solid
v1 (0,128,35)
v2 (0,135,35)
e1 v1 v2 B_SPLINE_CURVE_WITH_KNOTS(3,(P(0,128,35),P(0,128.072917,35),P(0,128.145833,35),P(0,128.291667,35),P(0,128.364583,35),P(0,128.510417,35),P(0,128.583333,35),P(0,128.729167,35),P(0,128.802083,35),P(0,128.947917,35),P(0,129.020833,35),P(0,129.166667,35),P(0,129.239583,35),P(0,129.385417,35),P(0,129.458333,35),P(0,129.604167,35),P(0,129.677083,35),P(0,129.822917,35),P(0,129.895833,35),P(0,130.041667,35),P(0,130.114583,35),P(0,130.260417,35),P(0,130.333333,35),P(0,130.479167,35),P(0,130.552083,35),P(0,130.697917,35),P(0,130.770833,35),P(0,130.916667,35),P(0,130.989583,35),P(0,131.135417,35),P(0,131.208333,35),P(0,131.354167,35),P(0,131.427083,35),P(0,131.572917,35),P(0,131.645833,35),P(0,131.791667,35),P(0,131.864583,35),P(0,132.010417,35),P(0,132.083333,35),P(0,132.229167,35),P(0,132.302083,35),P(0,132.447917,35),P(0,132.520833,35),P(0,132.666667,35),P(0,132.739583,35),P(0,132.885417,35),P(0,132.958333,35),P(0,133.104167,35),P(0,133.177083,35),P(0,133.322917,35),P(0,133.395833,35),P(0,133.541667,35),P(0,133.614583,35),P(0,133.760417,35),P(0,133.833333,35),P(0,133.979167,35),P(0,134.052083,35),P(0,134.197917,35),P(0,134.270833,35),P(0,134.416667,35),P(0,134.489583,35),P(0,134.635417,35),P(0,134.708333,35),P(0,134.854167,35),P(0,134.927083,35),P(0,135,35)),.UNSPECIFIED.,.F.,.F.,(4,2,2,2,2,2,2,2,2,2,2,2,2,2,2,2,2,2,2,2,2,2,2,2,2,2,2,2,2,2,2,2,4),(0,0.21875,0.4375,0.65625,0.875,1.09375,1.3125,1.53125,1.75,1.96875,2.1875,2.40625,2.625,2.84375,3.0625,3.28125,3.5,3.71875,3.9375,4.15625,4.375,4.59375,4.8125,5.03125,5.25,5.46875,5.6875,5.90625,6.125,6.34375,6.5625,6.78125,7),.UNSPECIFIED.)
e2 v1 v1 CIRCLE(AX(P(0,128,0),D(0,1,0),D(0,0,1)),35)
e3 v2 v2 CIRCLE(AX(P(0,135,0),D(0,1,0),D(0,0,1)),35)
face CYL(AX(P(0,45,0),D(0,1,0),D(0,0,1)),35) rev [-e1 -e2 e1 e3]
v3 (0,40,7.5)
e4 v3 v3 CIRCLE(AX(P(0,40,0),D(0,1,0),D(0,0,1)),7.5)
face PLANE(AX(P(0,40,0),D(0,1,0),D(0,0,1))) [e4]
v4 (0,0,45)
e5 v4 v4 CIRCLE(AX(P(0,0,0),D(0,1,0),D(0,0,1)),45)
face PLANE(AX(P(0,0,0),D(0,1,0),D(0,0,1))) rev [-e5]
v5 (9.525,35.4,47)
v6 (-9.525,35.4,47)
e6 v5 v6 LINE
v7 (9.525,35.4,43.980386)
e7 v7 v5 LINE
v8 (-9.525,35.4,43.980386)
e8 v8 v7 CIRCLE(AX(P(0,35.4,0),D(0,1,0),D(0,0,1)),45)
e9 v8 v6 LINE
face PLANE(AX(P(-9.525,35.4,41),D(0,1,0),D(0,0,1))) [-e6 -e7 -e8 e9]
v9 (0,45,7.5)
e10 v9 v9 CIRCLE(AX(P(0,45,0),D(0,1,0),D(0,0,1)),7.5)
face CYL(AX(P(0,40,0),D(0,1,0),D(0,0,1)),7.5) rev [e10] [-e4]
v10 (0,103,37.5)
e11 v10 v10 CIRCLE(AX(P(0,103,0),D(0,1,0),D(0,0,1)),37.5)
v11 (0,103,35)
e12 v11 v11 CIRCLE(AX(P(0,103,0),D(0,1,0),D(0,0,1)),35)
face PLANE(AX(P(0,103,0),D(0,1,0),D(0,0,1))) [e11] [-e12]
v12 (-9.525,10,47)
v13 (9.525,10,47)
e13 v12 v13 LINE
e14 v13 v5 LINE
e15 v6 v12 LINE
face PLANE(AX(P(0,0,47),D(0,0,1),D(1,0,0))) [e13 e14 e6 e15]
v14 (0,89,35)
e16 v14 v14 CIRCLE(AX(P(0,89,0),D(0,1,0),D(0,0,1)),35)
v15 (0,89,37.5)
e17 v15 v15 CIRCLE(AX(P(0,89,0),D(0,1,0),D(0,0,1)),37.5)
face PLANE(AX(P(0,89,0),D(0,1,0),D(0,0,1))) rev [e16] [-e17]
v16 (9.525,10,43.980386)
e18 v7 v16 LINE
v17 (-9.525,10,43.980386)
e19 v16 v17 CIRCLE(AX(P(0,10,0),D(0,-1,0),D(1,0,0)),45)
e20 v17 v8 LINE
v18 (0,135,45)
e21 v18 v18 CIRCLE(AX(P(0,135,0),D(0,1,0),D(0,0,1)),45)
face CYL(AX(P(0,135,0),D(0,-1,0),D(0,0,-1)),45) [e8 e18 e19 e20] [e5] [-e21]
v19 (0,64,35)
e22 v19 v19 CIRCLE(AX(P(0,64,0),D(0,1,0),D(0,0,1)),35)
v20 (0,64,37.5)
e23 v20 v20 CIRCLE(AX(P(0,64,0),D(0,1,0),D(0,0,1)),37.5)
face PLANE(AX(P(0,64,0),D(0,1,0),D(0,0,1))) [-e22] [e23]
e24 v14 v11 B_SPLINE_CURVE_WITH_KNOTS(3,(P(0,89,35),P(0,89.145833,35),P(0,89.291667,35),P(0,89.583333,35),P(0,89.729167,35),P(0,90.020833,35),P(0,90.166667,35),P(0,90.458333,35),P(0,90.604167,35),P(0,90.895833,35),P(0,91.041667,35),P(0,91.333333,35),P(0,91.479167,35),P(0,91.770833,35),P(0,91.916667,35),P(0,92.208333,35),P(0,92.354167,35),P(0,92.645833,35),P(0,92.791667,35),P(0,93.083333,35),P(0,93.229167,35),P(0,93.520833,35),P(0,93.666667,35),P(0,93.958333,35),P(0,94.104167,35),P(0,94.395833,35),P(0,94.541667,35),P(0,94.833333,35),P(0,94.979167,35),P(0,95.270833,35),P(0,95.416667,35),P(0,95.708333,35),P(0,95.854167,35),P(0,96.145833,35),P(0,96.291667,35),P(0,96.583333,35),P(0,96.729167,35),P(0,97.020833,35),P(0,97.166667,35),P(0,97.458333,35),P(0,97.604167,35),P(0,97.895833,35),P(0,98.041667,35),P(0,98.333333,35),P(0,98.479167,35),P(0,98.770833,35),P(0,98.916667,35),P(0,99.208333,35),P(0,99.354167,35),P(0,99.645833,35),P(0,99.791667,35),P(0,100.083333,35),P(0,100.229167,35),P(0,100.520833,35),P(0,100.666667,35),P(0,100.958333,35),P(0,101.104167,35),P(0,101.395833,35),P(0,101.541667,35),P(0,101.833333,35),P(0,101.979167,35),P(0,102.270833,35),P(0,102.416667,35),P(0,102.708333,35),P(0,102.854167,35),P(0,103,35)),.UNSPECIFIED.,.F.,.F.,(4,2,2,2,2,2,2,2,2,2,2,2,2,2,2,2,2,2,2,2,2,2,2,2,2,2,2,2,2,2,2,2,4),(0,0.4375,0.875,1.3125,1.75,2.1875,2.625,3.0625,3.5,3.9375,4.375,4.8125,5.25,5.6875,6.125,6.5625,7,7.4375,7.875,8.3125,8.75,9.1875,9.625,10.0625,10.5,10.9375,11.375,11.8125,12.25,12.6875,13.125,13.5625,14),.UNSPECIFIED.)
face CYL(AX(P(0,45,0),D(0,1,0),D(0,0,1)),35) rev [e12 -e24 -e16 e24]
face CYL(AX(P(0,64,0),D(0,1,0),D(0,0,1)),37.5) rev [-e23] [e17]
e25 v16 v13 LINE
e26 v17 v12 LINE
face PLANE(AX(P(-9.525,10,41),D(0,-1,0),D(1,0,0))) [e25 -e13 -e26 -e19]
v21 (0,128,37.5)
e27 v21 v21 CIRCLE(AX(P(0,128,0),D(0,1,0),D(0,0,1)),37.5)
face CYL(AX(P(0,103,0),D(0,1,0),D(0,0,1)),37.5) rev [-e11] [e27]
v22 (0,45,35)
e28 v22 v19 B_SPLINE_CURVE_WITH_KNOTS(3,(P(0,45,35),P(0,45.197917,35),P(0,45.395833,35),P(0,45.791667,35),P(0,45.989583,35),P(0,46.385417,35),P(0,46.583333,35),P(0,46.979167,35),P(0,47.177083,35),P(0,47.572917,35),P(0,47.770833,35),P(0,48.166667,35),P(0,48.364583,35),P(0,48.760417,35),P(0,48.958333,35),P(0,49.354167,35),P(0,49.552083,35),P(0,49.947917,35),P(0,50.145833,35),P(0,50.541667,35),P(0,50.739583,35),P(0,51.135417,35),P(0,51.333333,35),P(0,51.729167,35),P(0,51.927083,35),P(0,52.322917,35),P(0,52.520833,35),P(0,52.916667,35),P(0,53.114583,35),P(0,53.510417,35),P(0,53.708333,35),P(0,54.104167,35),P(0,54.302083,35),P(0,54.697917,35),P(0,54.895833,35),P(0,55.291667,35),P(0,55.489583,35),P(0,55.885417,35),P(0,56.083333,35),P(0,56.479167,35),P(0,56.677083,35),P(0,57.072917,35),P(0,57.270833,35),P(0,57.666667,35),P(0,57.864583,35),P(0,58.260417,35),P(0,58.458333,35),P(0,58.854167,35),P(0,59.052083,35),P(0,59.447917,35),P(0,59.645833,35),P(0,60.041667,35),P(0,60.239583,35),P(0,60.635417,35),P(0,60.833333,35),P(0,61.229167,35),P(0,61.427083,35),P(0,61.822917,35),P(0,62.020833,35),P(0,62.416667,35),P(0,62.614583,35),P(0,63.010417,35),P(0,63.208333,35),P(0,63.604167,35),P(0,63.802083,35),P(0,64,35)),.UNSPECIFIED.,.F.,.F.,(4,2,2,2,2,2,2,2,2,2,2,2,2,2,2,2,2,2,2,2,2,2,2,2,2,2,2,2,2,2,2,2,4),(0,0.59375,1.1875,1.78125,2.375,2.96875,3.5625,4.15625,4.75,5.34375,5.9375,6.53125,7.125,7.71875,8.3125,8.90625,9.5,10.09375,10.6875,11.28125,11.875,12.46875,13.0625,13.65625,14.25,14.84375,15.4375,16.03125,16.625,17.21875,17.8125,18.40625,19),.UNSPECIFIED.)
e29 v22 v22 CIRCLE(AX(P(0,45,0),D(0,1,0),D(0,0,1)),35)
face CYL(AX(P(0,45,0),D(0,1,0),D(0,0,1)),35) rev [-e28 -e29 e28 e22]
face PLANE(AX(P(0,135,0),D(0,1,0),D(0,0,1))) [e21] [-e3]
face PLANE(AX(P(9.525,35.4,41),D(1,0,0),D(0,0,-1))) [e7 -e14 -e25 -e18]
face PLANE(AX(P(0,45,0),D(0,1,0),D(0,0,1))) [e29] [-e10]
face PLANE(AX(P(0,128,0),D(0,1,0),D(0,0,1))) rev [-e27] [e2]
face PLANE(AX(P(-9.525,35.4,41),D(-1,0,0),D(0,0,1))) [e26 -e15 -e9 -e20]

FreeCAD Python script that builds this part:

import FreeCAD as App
import Part
import Sketcher
from FreeCAD import Vector


def add_polygon(sketch, points):
    """Adds a closed chain of lines whose ends are joined by coincident constraints."""
    first, n = sketch.GeometryCount, len(points)
    for a, b in zip(points, points[1:] + points[:1]):
        sketch.addGeometry(Part.LineSegment(App.Vector(*a, 0), App.Vector(*b, 0)), False)
    for i in range(n):
        sketch.addConstraint(Sketcher.Constraint("Coincident", first + i, 2, first + (i + 1) % n, 1))

doc = App.newDocument("Part")
body = doc.addObject("PartDesign::Body", "Body")

sketch1 = body.newObject("Sketcher::SketchObject", "Sketch")
sketch1.AttachmentSupport = (doc.getObject("XZ_Plane"), [""])
sketch1.MapMode = "FlatFace"
sketch1.addGeometry(Part.Circle(Vector(0, 0, 0), Vector(0, 0, 1), 45), False)
sketch1.addConstraint(Sketcher.Constraint("Coincident", 0, 3, -1, 1))
sketch1.addConstraint(Sketcher.Constraint("Diameter", 0, 90.0))
pad1 = body.newObject("PartDesign::Pad", "Pad")
pad1.Profile = sketch1
pad1.Length = 135
pad1.Reversed = True

sketch2 = body.newObject("Sketcher::SketchObject", "Sketch001")
sketch2.AttachmentSupport = (doc.getObject("XZ_Plane"), [""])
sketch2.MapMode = "FlatFace"
sketch2.AttachmentOffset = App.Placement(Vector(0, 0, -135), App.Rotation())
sketch2.addGeometry(Part.Circle(Vector(0, 0, 0), Vector(0, 0, 1), 35), False)
sketch2.addConstraint(Sketcher.Constraint("Coincident", 0, 3, -1, 1))
sketch2.addConstraint(Sketcher.Constraint("Diameter", 0, 70.0))
pocket1 = body.newObject("PartDesign::Pocket", "Pocket")
pocket1.Profile = sketch2
pocket1.Length = 90
pocket1.Reversed = True

sketch3 = body.newObject("Sketcher::SketchObject", "Sketch002")
sketch3.AttachmentSupport = (doc.getObject("XZ_Plane"), [""])
sketch3.MapMode = "FlatFace"
sketch3.AttachmentOffset = App.Placement(Vector(0, 0, -128), App.Rotation())
sketch3.addGeometry(Part.Circle(Vector(0, 0, 0), Vector(0, 0, 1), 38), False)
sketch3.addGeometry(Part.Circle(Vector(0, 0, 0), Vector(0, 0, 1), 35), False)
sketch3.addConstraint(Sketcher.Constraint("Coincident", 0, 3, -1, 1))
sketch3.addConstraint(Sketcher.Constraint("Coincident", 1, 3, -1, 1))
sketch3.addConstraint(Sketcher.Constraint("Diameter", 0, 75.0))
sketch3.addConstraint(Sketcher.Constraint("Diameter", 1, 70.0))
pocket2 = body.newObject("PartDesign::Pocket", "Pocket001")
pocket2.Profile = sketch3
pocket2.Length = 25
pocket2.Reversed = True

sketch4 = body.newObject("Sketcher::SketchObject", "Sketch003")
sketch4.AttachmentSupport = (doc.getObject("XZ_Plane"), [""])
sketch4.MapMode = "FlatFace"
sketch4.AttachmentOffset = App.Placement(Vector(0, 0, -89), App.Rotation())
sketch4.addGeometry(Part.Circle(Vector(0, 0, 0), Vector(0, 0, 1), 38), False)
sketch4.addGeometry(Part.Circle(Vector(0, 0, 0), Vector(0, 0, 1), 35), False)
sketch4.addConstraint(Sketcher.Constraint("Coincident", 0, 3, -1, 1))
sketch4.addConstraint(Sketcher.Constraint("Coincident", 1, 3, -1, 1))
sketch4.addConstraint(Sketcher.Constraint("Diameter", 0, 75.0))
sketch4.addConstraint(Sketcher.Constraint("Diameter", 1, 70.0))
pocket3 = body.newObject("PartDesign::Pocket", "Pocket002")
pocket3.Profile = sketch4
pocket3.Length = 25
pocket3.Reversed = True

sketch5 = body.newObject("Sketcher::SketchObject", "Sketch004")
sketch5.AttachmentSupport = (doc.getObject("XZ_Plane"), [""])
sketch5.MapMode = "FlatFace"
sketch5.AttachmentOffset = App.Placement(Vector(0, 0, -45), App.Rotation())
sketch5.addGeometry(Part.Circle(Vector(0, 0, 0), Vector(0, 0, 1), 8), False)
sketch5.addConstraint(Sketcher.Constraint("Coincident", 0, 3, -1, 1))
sketch5.addConstraint(Sketcher.Constraint("Diameter", 0, 15.0))
pocket4 = body.newObject("PartDesign::Pocket", "Pocket003")
pocket4.Profile = sketch5
pocket4.Length = 5
pocket4.Reversed = True

sketch6 = body.newObject("Sketcher::SketchObject", "Sketch005")
sketch6.AttachmentSupport = (doc.getObject("XY_Plane"), [""])
sketch6.MapMode = "FlatFace"
sketch6.AttachmentOffset = App.Placement(Vector(0, 0, 45), App.Rotation())
add_polygon(sketch6, [(-10, 35), (-10, 10), (10, 10), (10, 35)])
sketch6.addConstraint(Sketcher.Constraint("Vertical", 0))
sketch6.addConstraint(Sketcher.Constraint("Horizontal", 1))
sketch6.addConstraint(Sketcher.Constraint("Vertical", 2))
sketch6.addConstraint(Sketcher.Constraint("Horizontal", 3))
sketch6.addConstraint(Sketcher.Constraint("DistanceY", 0, 2, 0, 1, 25.4))
sketch6.addConstraint(Sketcher.Constraint("DistanceY", -1, 1, 0, 2, 10.0))
sketch6.addConstraint(Sketcher.Constraint("DistanceX", 1, 1, 1, 2, 19.05))
sketch6.addConstraint(Sketcher.Constraint("DistanceX", 0, 2, -1, 1, 9.525))
pad2 = body.newObject("PartDesign::Pad", "Pad001")
pad2.Profile = sketch6
pad2.Type = "TwoLengths"
pad2.Length = 2
pad2.Length2 = 4

doc.recompute()
